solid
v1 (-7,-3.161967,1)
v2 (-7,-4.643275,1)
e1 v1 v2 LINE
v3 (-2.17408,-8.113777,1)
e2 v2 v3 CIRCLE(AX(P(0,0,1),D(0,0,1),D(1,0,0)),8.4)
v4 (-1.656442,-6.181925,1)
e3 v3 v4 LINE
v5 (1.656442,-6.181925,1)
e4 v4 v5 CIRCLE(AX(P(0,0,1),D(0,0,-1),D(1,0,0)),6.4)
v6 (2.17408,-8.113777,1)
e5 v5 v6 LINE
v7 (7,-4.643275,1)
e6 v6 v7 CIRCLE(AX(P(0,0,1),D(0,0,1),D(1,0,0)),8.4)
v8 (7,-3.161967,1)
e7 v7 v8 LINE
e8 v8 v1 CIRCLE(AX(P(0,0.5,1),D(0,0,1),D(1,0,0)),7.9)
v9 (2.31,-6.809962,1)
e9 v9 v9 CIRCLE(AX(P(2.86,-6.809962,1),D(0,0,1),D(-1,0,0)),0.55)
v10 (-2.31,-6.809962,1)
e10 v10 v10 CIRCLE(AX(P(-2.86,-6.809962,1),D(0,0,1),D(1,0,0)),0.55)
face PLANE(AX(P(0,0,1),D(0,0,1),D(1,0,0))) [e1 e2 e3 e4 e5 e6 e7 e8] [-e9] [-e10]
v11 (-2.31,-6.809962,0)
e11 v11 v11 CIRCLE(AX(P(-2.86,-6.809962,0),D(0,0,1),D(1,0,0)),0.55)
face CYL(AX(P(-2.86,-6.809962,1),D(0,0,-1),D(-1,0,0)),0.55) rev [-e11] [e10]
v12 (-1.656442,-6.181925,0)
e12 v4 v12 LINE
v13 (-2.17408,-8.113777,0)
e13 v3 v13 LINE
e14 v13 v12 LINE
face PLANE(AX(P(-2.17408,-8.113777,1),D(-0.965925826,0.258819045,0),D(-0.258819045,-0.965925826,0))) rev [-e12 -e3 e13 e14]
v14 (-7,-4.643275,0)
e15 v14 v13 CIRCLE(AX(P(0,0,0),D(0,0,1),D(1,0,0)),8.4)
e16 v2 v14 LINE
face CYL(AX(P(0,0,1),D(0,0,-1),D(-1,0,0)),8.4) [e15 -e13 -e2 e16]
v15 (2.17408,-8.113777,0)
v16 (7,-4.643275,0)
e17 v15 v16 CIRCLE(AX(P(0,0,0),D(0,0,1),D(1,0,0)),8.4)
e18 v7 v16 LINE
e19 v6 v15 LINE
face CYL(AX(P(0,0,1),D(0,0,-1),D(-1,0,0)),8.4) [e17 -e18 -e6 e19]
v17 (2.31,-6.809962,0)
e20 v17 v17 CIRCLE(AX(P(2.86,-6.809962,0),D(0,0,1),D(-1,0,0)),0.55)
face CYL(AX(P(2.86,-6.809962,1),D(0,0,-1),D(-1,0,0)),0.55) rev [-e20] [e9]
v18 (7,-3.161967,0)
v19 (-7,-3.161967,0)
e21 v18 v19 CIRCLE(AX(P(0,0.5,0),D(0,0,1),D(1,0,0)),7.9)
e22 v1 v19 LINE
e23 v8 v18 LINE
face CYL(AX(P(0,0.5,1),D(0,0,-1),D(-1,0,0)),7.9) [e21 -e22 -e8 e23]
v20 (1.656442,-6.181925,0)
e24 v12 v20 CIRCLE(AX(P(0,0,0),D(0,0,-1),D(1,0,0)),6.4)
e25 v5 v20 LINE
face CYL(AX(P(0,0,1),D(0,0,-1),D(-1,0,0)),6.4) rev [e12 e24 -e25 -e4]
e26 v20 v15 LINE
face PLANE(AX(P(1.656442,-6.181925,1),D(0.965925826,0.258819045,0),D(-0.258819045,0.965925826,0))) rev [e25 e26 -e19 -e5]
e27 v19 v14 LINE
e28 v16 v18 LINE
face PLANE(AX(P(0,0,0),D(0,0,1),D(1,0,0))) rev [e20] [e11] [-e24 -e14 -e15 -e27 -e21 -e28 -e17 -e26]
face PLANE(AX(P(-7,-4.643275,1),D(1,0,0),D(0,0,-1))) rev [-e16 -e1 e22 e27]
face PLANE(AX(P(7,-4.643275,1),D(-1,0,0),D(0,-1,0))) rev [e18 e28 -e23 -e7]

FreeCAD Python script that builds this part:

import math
import FreeCAD as App
import Part
import Sketcher

V = App.Vector
Q = App.Units.Quantity

doc = App.newDocument("Part")
body = doc.addObject("PartDesign::Body", "Body")

sketch1 = body.newObject("Sketcher::SketchObject", "Sketch")
sketch1.AttachmentSupport = (doc.getObject("XY_Plane"), [""])
sketch1.MapMode = "FlatFace"
sketch1.addGeometry([
    Part.LineSegment(V(1.656442, -6.181925, 0), V(2.17408, -8.113777, 0)),
    Part.ArcOfCircle(Part.Circle(V(0, 0, 0), V(0, 0, 1), 8.4), math.radians(-75), math.radians(-33.55731)),
    Part.LineSegment(V(7, -4.643275, 0), V(7, -3.161967, 0)),
    Part.ArcOfCircle(Part.Circle(V(0, 0.5, 0), V(0, 0, 1), 7.9), math.radians(-27.61578), math.radians(207.61578)),
    Part.LineSegment(V(-7, -3.161967, 0), V(-7, -4.643275, 0)),
    Part.ArcOfCircle(Part.Circle(V(0, 0, 0), V(0, 0, 1), 8.4), math.radians(-146.44269), math.radians(-105)),
    Part.LineSegment(V(-2.17408, -8.113777, 0), V(-1.656442, -6.181925, 0)),
    Part.ArcOfCircle(Part.Circle(V(0, 0, 0), V(0, 0, 1), 6.4), math.radians(-75), math.radians(255)),
    Part.Circle(V(-2.86, -6.809962, 0), V(0, 0, 1), 0.55),
    Part.Circle(V(2.86, -6.809962, 0), V(0, 0, 1), 0.55),
], False)
sketch1.addConstraint([
    Sketcher.Constraint("Coincident", 0, 2, 1, 1),
    Sketcher.Constraint("Coincident", 1, 2, 2, 1),
    Sketcher.Constraint("Coincident", 2, 2, 3, 1),
    Sketcher.Constraint("Coincident", 3, 2, 4, 1),
    Sketcher.Constraint("Coincident", 4, 2, 5, 1),
    Sketcher.Constraint("Coincident", 5, 2, 6, 1),
    Sketcher.Constraint("Coincident", 6, 2, 7, 2),
    Sketcher.Constraint("Coincident", 7, 1, 0, 1),
    Sketcher.Constraint("Vertical", 2),
    Sketcher.Constraint("Vertical", 4),
    Sketcher.Constraint("Coincident", 1, 3, -1, 1),
    Sketcher.Constraint("Coincident", 5, 3, -1, 1),
    Sketcher.Constraint("Coincident", 7, 3, -1, 1),
    Sketcher.Constraint("Equal", 1, 5),
    Sketcher.Constraint("Equal", 8, 9),
    Sketcher.Constraint("Symmetric", 8, 3, 9, 3, -2),
    Sketcher.Constraint("Symmetric", 2, 2, 3, 2, -2),
    Sketcher.Constraint("Horizontal", 0, 2, 5, 2),
    Sketcher.Constraint("Horizontal", 6, 2, 7, 1),
    Sketcher.Constraint("Diameter", 8, Q("1.1 mm")),
    Sketcher.Constraint("Radius", 1, Q("8.4 mm")),
    Sketcher.Constraint("Radius", 3, Q("7.9 mm")),
    Sketcher.Constraint("Radius", 7, Q("6.4 mm")),
    Sketcher.Constraint("Angle", 0, Q("-75 deg")),
    Sketcher.Constraint("DistanceX", -1, 1, 1, 2, Q("7 mm")),
    Sketcher.Constraint("DistanceY", -1, 1, 3, 3, Q("0.5 mm")),
    Sketcher.Constraint("DistanceX", 8, 3, -1, 1, Q("2.86 mm")),
    Sketcher.Constraint("DistanceX", -1, 1, 0, 2, Q("2.17408 mm")),
    Sketcher.Constraint("DistanceY", 8, 3, -1, 1, Q("6.809962 mm")),
])
pad1 = body.newObject("PartDesign::Pad", "Pad")
pad1.Profile = sketch1
pad1.Length = 1

doc.recompute()
